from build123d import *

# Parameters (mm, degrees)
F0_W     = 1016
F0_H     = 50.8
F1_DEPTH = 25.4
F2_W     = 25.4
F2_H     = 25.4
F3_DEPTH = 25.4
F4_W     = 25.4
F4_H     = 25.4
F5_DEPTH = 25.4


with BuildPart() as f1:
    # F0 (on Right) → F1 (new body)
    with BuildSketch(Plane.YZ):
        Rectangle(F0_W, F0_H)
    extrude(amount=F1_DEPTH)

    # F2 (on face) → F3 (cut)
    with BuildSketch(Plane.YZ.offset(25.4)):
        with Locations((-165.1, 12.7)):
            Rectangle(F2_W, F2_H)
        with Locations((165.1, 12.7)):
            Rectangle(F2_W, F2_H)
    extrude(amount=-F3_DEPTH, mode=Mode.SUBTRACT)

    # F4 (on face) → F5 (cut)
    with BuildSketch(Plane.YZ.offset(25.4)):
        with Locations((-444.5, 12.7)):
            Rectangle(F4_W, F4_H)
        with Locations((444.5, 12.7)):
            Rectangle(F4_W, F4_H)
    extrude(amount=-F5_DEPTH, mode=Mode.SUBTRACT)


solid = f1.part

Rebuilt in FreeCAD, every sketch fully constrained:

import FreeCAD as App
import Part
import Sketcher

V = App.Vector
Q = App.Units.Quantity

doc = App.newDocument("Part")
params = doc.addObject("Spreadsheet::Sheet", "Params")
for row, (alias, value) in enumerate([
    ("sketch1_width", "40 in"),
    ("sketch1_height", "2 in"),
    ("pad1_length", "1 in"),
    ("sketch2_width", "1 in"),
    ("pocket1_length", "1 in"),
    ("sketch3_width", "1 in"),
    ("pocket2_length", "1 in"),
], start=1):
    params.set(f"A{row}", alias)
    params.set(f"B{row}", "=" + value)
    params.setAlias(f"B{row}", alias)

body = doc.addObject("PartDesign::Body", "Body")

# Sketch on YZ plane
sketch1 = body.newObject("Sketcher::SketchObject", "Sketch")
sketch1.AttachmentSupport = (doc.getObject("YZ_Plane"), [""])
sketch1.MapMode = "FlatFace"
sketch1.addGeometry(Part.LineSegment(V(-508, 25, 0), V(-508, -25, 0)), False)
sketch1.addGeometry(Part.LineSegment(V(-508, -25, 0), V(508, -25, 0)), False)
sketch1.addGeometry(Part.LineSegment(V(508, -25, 0), V(508, 25, 0)), False)
sketch1.addGeometry(Part.LineSegment(V(508, 25, 0), V(-508, 25, 0)), False)
sketch1.addConstraint(Sketcher.Constraint("Coincident", 0, 2, 1, 1))
sketch1.addConstraint(Sketcher.Constraint("Coincident", 1, 2, 2, 1))
sketch1.addConstraint(Sketcher.Constraint("Coincident", 2, 2, 3, 1))
sketch1.addConstraint(Sketcher.Constraint("Coincident", 3, 2, 0, 1))
sketch1.addConstraint(Sketcher.Constraint("Vertical", 0))
sketch1.addConstraint(Sketcher.Constraint("Horizontal", 1))
sketch1.addConstraint(Sketcher.Constraint("Vertical", 2))
sketch1.addConstraint(Sketcher.Constraint("Horizontal", 3))
sketch1.addConstraint(Sketcher.Constraint("Symmetric", 0, 2, 2, 2, -1, 1))
sketch1.addConstraint(Sketcher.Constraint("DistanceX", 1, 1, 1, 2, Q("40 in")))
sketch1.addConstraint(Sketcher.Constraint("DistanceY", 0, 2, 0, 1, Q("2 in")))
sketch1.setExpression("Constraints[9]", "Params.sketch1_width")
sketch1.setExpression("Constraints[10]", "Params.sketch1_height")
pad1 = body.newObject("PartDesign::Pad", "Pad")
pad1.Profile = sketch1
pad1.setExpression("Length", "Params.pad1_length")

# Sketch on YZ plane
sketch2 = body.newObject("Sketcher::SketchObject", "Sketch001")
sketch2.AttachmentSupport = (doc.getObject("YZ_Plane"), [""])
sketch2.MapMode = "FlatFace"
sketch2.AttachmentOffset = App.Placement(V(0, 0, 1 * 25.4), App.Rotation())
sketch2.addGeometry(Part.LineSegment(V(-178, 25, 0), V(-178, 0, 0)), False)
sketch2.addGeometry(Part.LineSegment(V(-178, 0, 0), V(-152, 0, 0)), False)
sketch2.addGeometry(Part.LineSegment(V(-152, 0, 0), V(-152, 25, 0)), False)
sketch2.addGeometry(Part.LineSegment(V(-152, 25, 0), V(-178, 25, 0)), False)
sketch2.addGeometry(Part.LineSegment(V(152, 25, 0), V(152, 0, 0)), False)
sketch2.addGeometry(Part.LineSegment(V(152, 0, 0), V(178, 0, 0)), False)
sketch2.addGeometry(Part.LineSegment(V(178, 0, 0), V(178, 25, 0)), False)
sketch2.addGeometry(Part.LineSegment(V(178, 25, 0), V(152, 25, 0)), False)
sketch2.addConstraint(Sketcher.Constraint("Coincident", 0, 2, 1, 1))
sketch2.addConstraint(Sketcher.Constraint("Coincident", 1, 2, 2, 1))
sketch2.addConstraint(Sketcher.Constraint("Coincident", 2, 2, 3, 1))
sketch2.addConstraint(Sketcher.Constraint("Coincident", 3, 2, 0, 1))
sketch2.addConstraint(Sketcher.Constraint("Coincident", 4, 2, 5, 1))
sketch2.addConstraint(Sketcher.Constraint("Coincident", 5, 2, 6, 1))
sketch2.addConstraint(Sketcher.Constraint("Coincident", 6, 2, 7, 1))
sketch2.addConstraint(Sketcher.Constraint("Coincident", 7, 2, 4, 1))
sketch2.addConstraint(Sketcher.Constraint("Vertical", 0))
sketch2.addConstraint(Sketcher.Constraint("Horizontal", 1))
sketch2.addConstraint(Sketcher.Constraint("Vertical", 2))
sketch2.addConstraint(Sketcher.Constraint("Horizontal", 3))
sketch2.addConstraint(Sketcher.Constraint("Vertical", 4))
sketch2.addConstraint(Sketcher.Constraint("Horizontal", 5))
sketch2.addConstraint(Sketcher.Constraint("Vertical", 6))
sketch2.addConstraint(Sketcher.Constraint("Horizontal", 7))
sketch2.addConstraint(Sketcher.Constraint("Symmetric", 1, 2, 4, 2, -1, 1))
sketch2.addConstraint(Sketcher.Constraint("Symmetric", 0, 2, 5, 2, -2))
sketch2.addConstraint(Sketcher.Constraint("Horizontal", 3, 2, 6, 2))
sketch2.addConstraint(Sketcher.Constraint("Equal", 7, 0))
sketch2.addConstraint(Sketcher.Constraint("DistanceX", 1, 1, 1, 2, Q("1 in")))
sketch2.addConstraint(Sketcher.Constraint("DistanceX", 0, 2, -1, 1, Q("7 in")))
sketch2.setExpression("Constraints[20]", "Params.sketch2_width")
pocket1 = body.newObject("PartDesign::Pocket", "Pocket")
pocket1.Profile = sketch2
pocket1.setExpression("Length", "Params.pocket1_length")

# Sketch on YZ plane
sketch3 = body.newObject("Sketcher::SketchObject", "Sketch002")
sketch3.AttachmentSupport = (doc.getObject("YZ_Plane"), [""])
sketch3.MapMode = "FlatFace"
sketch3.AttachmentOffset = App.Placement(V(0, 0, 1 * 25.4), App.Rotation())
sketch3.addGeometry(Part.LineSegment(V(-457, 25, 0), V(-457, 0, 0)), False)
sketch3.addGeometry(Part.LineSegment(V(-457, 0, 0), V(-432, 0, 0)), False)
sketch3.addGeometry(Part.LineSegment(V(-432, 0, 0), V(-432, 25, 0)), False)
sketch3.addGeometry(Part.LineSegment(V(-432, 25, 0), V(-457, 25, 0)), False)
sketch3.addGeometry(Part.LineSegment(V(432, 25, 0), V(432, 0, 0)), False)
sketch3.addGeometry(Part.LineSegment(V(432, 0, 0), V(457, 0, 0)), False)
sketch3.addGeometry(Part.LineSegment(V(457, 0, 0), V(457, 25, 0)), False)
sketch3.addGeometry(Part.LineSegment(V(457, 25, 0), V(432, 25, 0)), False)
sketch3.addConstraint(Sketcher.Constraint("Coincident", 0, 2, 1, 1))
sketch3.addConstraint(Sketcher.Constraint("Coincident", 1, 2, 2, 1))
sketch3.addConstraint(Sketcher.Constraint("Coincident", 2, 2, 3, 1))
sketch3.addConstraint(Sketcher.Constraint("Coincident", 3, 2, 0, 1))
sketch3.addConstraint(Sketcher.Constraint("Coincident", 4, 2, 5, 1))
sketch3.addConstraint(Sketcher.Constraint("Coincident", 5, 2, 6, 1))
sketch3.addConstraint(Sketcher.Constraint("Coincident", 6, 2, 7, 1))
sketch3.addConstraint(Sketcher.Constraint("Coincident", 7, 2, 4, 1))
sketch3.addConstraint(Sketcher.Constraint("Vertical", 0))
sketch3.addConstraint(Sketcher.Constraint("Horizontal", 1))
sketch3.addConstraint(Sketcher.Constraint("Vertical", 2))
sketch3.addConstraint(Sketcher.Constraint("Horizontal", 3))
sketch3.addConstraint(Sketcher.Constraint("Vertical", 4))
sketch3.addConstraint(Sketcher.Constraint("Horizontal", 5))
sketch3.addConstraint(Sketcher.Constraint("Vertical", 6))
sketch3.addConstraint(Sketcher.Constraint("Horizontal", 7))
sketch3.addConstraint(Sketcher.Constraint("Symmetric", 1, 2, 4, 2, -1, 1))
sketch3.addConstraint(Sketcher.Constraint("Symmetric", 0, 2, 5, 2, -2))
sketch3.addConstraint(Sketcher.Constraint("Horizontal", 3, 2, 6, 2))
sketch3.addConstraint(Sketcher.Constraint("Equal", 7, 0))
sketch3.addConstraint(Sketcher.Constraint("DistanceX", 1, 1, 1, 2, Q("1 in")))
sketch3.addConstraint(Sketcher.Constraint("DistanceX", 0, 2, -1, 1, Q("18 in")))
sketch3.setExpression("Constraints[20]", "Params.sketch3_width")
pocket2 = body.newObject("PartDesign::Pocket", "Pocket001")
pocket2.Profile = sketch3
pocket2.setExpression("Length", "Params.pocket2_length")

doc.recompute()
